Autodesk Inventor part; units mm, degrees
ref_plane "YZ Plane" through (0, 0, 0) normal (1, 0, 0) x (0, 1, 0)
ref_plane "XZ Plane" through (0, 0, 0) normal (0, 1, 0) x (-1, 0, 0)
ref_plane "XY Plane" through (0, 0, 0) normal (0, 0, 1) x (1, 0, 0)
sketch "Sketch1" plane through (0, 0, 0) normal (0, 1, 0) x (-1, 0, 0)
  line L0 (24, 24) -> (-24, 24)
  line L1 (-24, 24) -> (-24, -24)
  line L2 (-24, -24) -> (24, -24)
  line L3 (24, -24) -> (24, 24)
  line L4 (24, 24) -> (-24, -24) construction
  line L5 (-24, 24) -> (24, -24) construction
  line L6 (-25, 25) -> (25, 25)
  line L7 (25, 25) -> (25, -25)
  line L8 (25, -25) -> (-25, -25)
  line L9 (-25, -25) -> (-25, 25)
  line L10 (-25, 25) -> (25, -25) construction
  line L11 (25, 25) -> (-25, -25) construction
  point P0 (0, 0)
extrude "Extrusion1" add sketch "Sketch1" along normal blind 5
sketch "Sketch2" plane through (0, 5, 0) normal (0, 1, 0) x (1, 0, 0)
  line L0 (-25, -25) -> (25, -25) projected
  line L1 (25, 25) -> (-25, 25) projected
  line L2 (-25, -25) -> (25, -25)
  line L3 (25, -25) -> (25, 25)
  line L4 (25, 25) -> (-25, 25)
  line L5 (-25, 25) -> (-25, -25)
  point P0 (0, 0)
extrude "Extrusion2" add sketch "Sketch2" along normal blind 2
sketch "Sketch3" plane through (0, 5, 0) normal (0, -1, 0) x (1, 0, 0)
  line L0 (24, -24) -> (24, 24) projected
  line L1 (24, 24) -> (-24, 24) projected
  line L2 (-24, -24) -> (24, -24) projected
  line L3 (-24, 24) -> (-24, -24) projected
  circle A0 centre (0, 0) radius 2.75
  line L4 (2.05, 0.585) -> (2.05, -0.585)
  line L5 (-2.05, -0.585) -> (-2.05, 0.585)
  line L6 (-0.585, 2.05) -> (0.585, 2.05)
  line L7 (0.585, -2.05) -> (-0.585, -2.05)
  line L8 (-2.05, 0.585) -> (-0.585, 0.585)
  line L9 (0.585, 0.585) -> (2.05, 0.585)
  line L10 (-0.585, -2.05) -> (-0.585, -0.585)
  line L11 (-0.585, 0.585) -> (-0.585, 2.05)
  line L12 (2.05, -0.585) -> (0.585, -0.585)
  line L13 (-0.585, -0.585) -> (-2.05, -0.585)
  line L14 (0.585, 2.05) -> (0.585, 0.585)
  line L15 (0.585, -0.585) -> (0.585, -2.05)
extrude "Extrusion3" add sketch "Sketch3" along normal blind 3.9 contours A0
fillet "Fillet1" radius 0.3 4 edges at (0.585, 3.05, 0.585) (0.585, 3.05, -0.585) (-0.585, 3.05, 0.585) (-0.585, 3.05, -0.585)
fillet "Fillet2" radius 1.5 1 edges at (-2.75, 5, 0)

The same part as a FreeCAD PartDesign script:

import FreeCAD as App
import Part
import Sketcher

V = App.Vector


def edges_at(feature, points):
    """Names of the edges that pass closest to the given points."""
    edges = feature.Shape.Edges
    near = lambda p: min(range(len(edges)), key=lambda i: edges[i].distToShape(Part.Vertex(*p))[0])
    return sorted({f"Edge{near(p) + 1}" for p in points})


def add_polygon(sketch, points):
    """Adds a closed chain of lines whose ends are joined by coincident constraints."""
    first, n = sketch.GeometryCount, len(points)
    for a, b in zip(points, points[1:] + points[:1]):
        sketch.addGeometry(Part.LineSegment(App.Vector(*a, 0), App.Vector(*b, 0)), False)
    for i in range(n):
        sketch.addConstraint(Sketcher.Constraint("Coincident", first + i, 2, first + (i + 1) % n, 1))

doc = App.newDocument("Part")
body = doc.addObject("PartDesign::Body", "Body")

sketch1 = body.newObject("Sketcher::SketchObject", "Sketch")
sketch1.AttachmentSupport = (doc.getObject("XZ_Plane"), [""])
sketch1.MapMode = "FlatFace"
add_polygon(sketch1, [(-25, 25), (25, 25), (25, -25), (-25, -25)])
add_polygon(sketch1, [(24, 24), (-24, 24), (-24, -24), (24, -24)])
sketch1.addConstraint(Sketcher.Constraint("Horizontal", 0))
sketch1.addConstraint(Sketcher.Constraint("Vertical", 1))
sketch1.addConstraint(Sketcher.Constraint("Horizontal", 2))
sketch1.addConstraint(Sketcher.Constraint("Vertical", 3))
sketch1.addConstraint(Sketcher.Constraint("Horizontal", 4))
sketch1.addConstraint(Sketcher.Constraint("Vertical", 5))
sketch1.addConstraint(Sketcher.Constraint("Horizontal", 6))
sketch1.addConstraint(Sketcher.Constraint("Vertical", 7))
sketch1.addConstraint(Sketcher.Constraint("Symmetric", 0, 2, 2, 2, -1, 1))
sketch1.addConstraint(Sketcher.Constraint("Symmetric", 4, 2, 6, 2, -1, 1))
sketch1.addConstraint(Sketcher.Constraint("Equal", 2, 1))
sketch1.addConstraint(Sketcher.Constraint("Equal", 6, 5))
sketch1.addConstraint(Sketcher.Constraint("DistanceX", 0, 1, 0, 2, 50.0))
sketch1.addConstraint(Sketcher.Constraint("DistanceX", 4, 2, 4, 1, 48.0))
pad1 = body.newObject("PartDesign::Pad", "Pad")
pad1.Profile = sketch1
pad1.Length = 5
pad1.Reversed = True

sketch2 = body.newObject("Sketcher::SketchObject", "Sketch001")
sketch2.AttachmentSupport = (doc.getObject("XZ_Plane"), [""])
sketch2.MapMode = "FlatFace"
sketch2.AttachmentOffset = App.Placement(V(0, 0, -5), App.Rotation())
add_polygon(sketch2, [(-25, -25), (-25, 25), (25, 25), (25, -25)])
sketch2.addConstraint(Sketcher.Constraint("Vertical", 0))
sketch2.addConstraint(Sketcher.Constraint("Horizontal", 1))
sketch2.addConstraint(Sketcher.Constraint("Vertical", 2))
sketch2.addConstraint(Sketcher.Constraint("Horizontal", 3))
sketch2.addConstraint(Sketcher.Constraint("Symmetric", 0, 2, 2, 2, -1, 1))
sketch2.addConstraint(Sketcher.Constraint("Equal", 3, 0))
sketch2.addConstraint(Sketcher.Constraint("DistanceX", 1, 1, 1, 2, 50.0))
pad2 = body.newObject("PartDesign::Pad", "Pad001")
pad2.Profile = sketch2
pad2.Length = 2
pad2.Reversed = True

sketch3 = body.newObject("Sketcher::SketchObject", "Sketch002")
sketch3.AttachmentSupport = (doc.getObject("XZ_Plane"), [""])
sketch3.MapMode = "FlatFace"
sketch3.AttachmentOffset = App.Placement(V(0, 0, -5), App.Rotation())
sketch3.addGeometry(Part.Circle(V(0, 0, 0), V(0, 0, 1), 2.8), False)
add_polygon(sketch3, [(0.6, 0.6), (2, 0.6), (2, -0.6), (0.6, -0.6), (0.6, -2), (-0.6, -2), (-0.6, -0.6), (-2, -0.6), (-2, 0.6), (-0.6, 0.6), (-0.6, 2), (0.6, 2)])
sketch3.addConstraint(Sketcher.Constraint("Horizontal", 1))
sketch3.addConstraint(Sketcher.Constraint("Vertical", 2))
sketch3.addConstraint(Sketcher.Constraint("Horizontal", 3))
sketch3.addConstraint(Sketcher.Constraint("Vertical", 4))
sketch3.addConstraint(Sketcher.Constraint("Horizontal", 5))
sketch3.addConstraint(Sketcher.Constraint("Vertical", 6))
sketch3.addConstraint(Sketcher.Constraint("Horizontal", 7))
sketch3.addConstraint(Sketcher.Constraint("Vertical", 8))
sketch3.addConstraint(Sketcher.Constraint("Horizontal", 9))
sketch3.addConstraint(Sketcher.Constraint("Vertical", 10))
sketch3.addConstraint(Sketcher.Constraint("Horizontal", 11))
sketch3.addConstraint(Sketcher.Constraint("Vertical", 12))
sketch3.addConstraint(Sketcher.Constraint("Coincident", 0, 3, -1, 1))
sketch3.addConstraint(Sketcher.Constraint("Symmetric", 1, 2, 7, 2, -1, 1))
sketch3.addConstraint(Sketcher.Constraint("Symmetric", 3, 2, 9, 2, -1, 1))
sketch3.addConstraint(Sketcher.Constraint("Symmetric", 5, 2, 11, 2, -1, 1))
sketch3.addConstraint(Sketcher.Constraint("Symmetric", 3, 2, 6, 2, -2))
sketch3.addConstraint(Sketcher.Constraint("Equal", 11, 2))
sketch3.addConstraint(Sketcher.Constraint("Equal", 9, 4))
sketch3.addConstraint(Sketcher.Constraint("Diameter", 0, 5.5))
sketch3.addConstraint(Sketcher.Constraint("DistanceX", 5, 2, 5, 1, 1.17))
sketch3.addConstraint(Sketcher.Constraint("DistanceX", 1, 1, 1, 2, 1.465))
pad3 = body.newObject("PartDesign::Pad", "Pad002")
pad3.Profile = sketch3
pad3.Length = 3.9
doc.recompute()

fillet = body.newObject("PartDesign::Fillet", "Fillet")
fillet.Base = (pad3, edges_at(pad3, [
    (0.585, 3.05, 0.585),
    (0.585, 3.05, -0.585),
    (-0.585, 3.05, 0.585),
    (-0.585, 3.05, -0.585),
]))
fillet.Radius = 0.3
doc.recompute()

fillet2 = body.newObject("PartDesign::Fillet", "Fillet001")
fillet2.Base = (fillet, edges_at(fillet, [(-2.75, 5, 0)]))
fillet2.Radius = 1.5

doc.recompute()
